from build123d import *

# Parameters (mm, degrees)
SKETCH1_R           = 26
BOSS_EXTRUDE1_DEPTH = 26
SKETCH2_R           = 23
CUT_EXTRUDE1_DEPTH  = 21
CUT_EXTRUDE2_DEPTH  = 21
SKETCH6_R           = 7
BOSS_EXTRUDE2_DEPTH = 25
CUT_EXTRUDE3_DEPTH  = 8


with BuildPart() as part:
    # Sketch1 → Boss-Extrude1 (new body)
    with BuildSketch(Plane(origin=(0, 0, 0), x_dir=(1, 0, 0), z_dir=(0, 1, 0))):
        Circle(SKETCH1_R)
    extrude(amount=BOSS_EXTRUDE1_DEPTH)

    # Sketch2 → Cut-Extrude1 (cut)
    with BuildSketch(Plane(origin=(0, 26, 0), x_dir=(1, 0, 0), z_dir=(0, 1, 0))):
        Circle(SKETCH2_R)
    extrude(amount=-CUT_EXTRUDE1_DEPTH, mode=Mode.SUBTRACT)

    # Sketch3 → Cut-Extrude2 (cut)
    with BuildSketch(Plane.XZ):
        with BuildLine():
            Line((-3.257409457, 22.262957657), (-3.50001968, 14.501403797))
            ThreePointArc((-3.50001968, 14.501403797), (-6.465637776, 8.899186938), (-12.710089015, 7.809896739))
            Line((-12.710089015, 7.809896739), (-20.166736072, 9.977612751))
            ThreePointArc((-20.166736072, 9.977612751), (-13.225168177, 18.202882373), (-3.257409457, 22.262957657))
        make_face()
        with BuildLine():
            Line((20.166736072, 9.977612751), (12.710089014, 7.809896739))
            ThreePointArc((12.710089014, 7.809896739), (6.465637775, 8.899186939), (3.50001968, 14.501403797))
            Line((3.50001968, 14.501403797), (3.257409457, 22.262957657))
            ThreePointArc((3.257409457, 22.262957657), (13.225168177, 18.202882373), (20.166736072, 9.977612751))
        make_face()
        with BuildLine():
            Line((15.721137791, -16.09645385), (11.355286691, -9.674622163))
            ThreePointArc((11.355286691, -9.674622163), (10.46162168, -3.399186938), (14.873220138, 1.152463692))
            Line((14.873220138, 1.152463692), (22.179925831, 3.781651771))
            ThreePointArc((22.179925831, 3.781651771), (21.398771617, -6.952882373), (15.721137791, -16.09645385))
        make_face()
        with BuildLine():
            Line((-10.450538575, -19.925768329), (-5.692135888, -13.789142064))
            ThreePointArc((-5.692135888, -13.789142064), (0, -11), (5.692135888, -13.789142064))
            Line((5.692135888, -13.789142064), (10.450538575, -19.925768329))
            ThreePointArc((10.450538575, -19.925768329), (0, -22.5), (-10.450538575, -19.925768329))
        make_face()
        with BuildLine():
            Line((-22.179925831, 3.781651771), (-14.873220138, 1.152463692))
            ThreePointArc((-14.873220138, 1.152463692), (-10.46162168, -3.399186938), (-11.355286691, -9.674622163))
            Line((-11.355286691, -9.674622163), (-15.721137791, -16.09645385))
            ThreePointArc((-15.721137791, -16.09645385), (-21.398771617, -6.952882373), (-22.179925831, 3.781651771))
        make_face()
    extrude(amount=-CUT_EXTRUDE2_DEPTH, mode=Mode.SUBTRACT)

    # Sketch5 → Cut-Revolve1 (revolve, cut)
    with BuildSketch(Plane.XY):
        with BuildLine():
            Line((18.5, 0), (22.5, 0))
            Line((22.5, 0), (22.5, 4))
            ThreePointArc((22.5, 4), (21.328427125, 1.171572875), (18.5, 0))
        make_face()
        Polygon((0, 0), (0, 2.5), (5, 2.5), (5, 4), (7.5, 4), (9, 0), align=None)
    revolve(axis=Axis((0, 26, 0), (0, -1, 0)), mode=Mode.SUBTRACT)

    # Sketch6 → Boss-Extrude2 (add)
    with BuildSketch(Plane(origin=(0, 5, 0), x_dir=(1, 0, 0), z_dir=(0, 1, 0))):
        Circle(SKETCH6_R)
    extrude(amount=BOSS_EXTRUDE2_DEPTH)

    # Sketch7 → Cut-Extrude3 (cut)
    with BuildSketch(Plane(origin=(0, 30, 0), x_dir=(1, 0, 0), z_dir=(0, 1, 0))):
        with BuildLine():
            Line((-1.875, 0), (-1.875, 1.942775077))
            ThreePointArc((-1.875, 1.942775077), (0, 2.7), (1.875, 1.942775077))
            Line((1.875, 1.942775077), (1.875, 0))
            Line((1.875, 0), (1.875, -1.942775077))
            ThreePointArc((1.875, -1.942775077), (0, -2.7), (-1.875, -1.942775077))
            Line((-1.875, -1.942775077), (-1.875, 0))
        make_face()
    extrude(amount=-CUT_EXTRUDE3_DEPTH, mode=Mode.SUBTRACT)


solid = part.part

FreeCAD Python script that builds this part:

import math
import FreeCAD as App
import Part
import Sketcher

V = App.Vector
Q = App.Units.Quantity

doc = App.newDocument("Part")
body = doc.addObject("PartDesign::Body", "Body")

# Sketch on XZ plane
sketch1 = body.newObject("Sketcher::SketchObject", "Sketch")
sketch1.AttachmentSupport = (doc.getObject("XZ_Plane"), [""])
sketch1.MapMode = "FlatFace"
sketch1.addGeometry(Part.Circle(V(0, 0, 0), V(0, 0, 1), 26), False)
sketch1.addConstraint([
    Sketcher.Constraint("Coincident", 0, 3, -1, 1),
    Sketcher.Constraint("Diameter", 0, Q("52 mm")),
])
pad1 = body.newObject("PartDesign::Pad", "Pad")
pad1.Profile = sketch1
pad1.Length = 26
pad1.Reversed = True

# Sketch on XZ plane
sketch2 = body.newObject("Sketcher::SketchObject", "Sketch001")
sketch2.AttachmentSupport = (doc.getObject("XZ_Plane"), [""])
sketch2.MapMode = "FlatFace"
sketch2.AttachmentOffset = App.Placement(V(0, 0, -26), App.Rotation())
sketch2.addGeometry(Part.Circle(V(0, 0, 0), V(0, 0, 1), 23), False)
sketch2.addConstraint([
    Sketcher.Constraint("Coincident", 0, 3, -1, 1),
    Sketcher.Constraint("Diameter", 0, Q("46 mm")),
])
pocket1 = body.newObject("PartDesign::Pocket", "Pocket")
pocket1.Profile = sketch2
pocket1.Length = 21
pocket1.Reversed = True

# Sketch on XZ plane
sketch3 = body.newObject("Sketcher::SketchObject", "Sketch002")
sketch3.AttachmentSupport = (doc.getObject("XZ_Plane"), [""])
sketch3.MapMode = "FlatFace"
sketch3.addGeometry([
    Part.LineSegment(V(-4, 15, 0), V(-3, 22, 0)),  # 0
    Part.ArcOfCircle(Part.Circle(V(0, 0, 0), V(0, 0, 1), 23), math.radians(98), math.radians(154)),  # 1
    Part.LineSegment(V(-20, 10, 0), V(-13, 8, 0)),  # 2
    Part.ArcOfCircle(Part.Circle(V(-11, 15, 0), V(0, 0, 1), 7), math.radians(-106), math.radians(-2)),  # 3
    Part.LineSegment(V(13, 8, 0), V(20, 10, 0)),  # 4
    Part.ArcOfCircle(Part.Circle(V(0, 0, 0), V(0, 0, 1), 23), math.radians(26), math.radians(82)),  # 5
    Part.LineSegment(V(3, 22, 0), V(4, 15, 0)),  # 6
    Part.ArcOfCircle(Part.Circle(V(11, 15, 0), V(0, 0, 1), 7), math.radians(-178), math.radians(-74)),  # 7
    Part.LineSegment(V(11, -10, 0), V(16, -16, 0)),  # 8
    Part.ArcOfCircle(Part.Circle(V(0, 0, 0), V(0, 0, 1), 22), math.radians(-46), math.radians(10)),  # 9
    Part.LineSegment(V(22, 4, 0), V(15, 1, 0)),  # 10
    Part.ArcOfCircle(Part.Circle(V(17, -6, 0), V(0, 0, 1), 7), math.radians(110), math.radians(214)),  # 11
    Part.LineSegment(V(-6, -14, 0), V(-10, -20, 0)),  # 12
    Part.ArcOfCircle(Part.Circle(V(0, 0, 0), V(0, 0, 1), 23), math.radians(-118), math.radians(-62)),  # 13
    Part.LineSegment(V(10, -20, 0), V(6, -14, 0)),  # 14
    Part.ArcOfCircle(Part.Circle(V(0, -18, 0), V(0, 0, 1), 7), math.radians(38), math.radians(142)),  # 15
    Part.LineSegment(V(-15, 1, 0), V(-22, 4, 0)),  # 16
    Part.ArcOfCircle(Part.Circle(V(0, 0, 0), V(0, 0, 1), 22), math.radians(170), math.radians(226)),  # 17
    Part.LineSegment(V(-16, -16, 0), V(-11, -10, 0)),  # 18
    Part.ArcOfCircle(Part.Circle(V(-17, -6, 0), V(0, 0, 1), 7), math.radians(-34), math.radians(70)),  # 19
], False)
sketch3.addConstraint([
    Sketcher.Constraint("Coincident", 0, 2, 1, 1),
    Sketcher.Constraint("Coincident", 1, 2, 2, 1),
    Sketcher.Constraint("Tangent", 2, 2, 3, 1),
    Sketcher.Constraint("Tangent", 3, 2, 0, 1),
    Sketcher.Constraint("Coincident", 4, 2, 5, 1),
    Sketcher.Constraint("Coincident", 5, 2, 6, 1),
    Sketcher.Constraint("Tangent", 6, 2, 7, 1),
    Sketcher.Constraint("Tangent", 7, 2, 4, 1),
    Sketcher.Constraint("Coincident", 8, 2, 9, 1),
    Sketcher.Constraint("Coincident", 9, 2, 10, 1),
    Sketcher.Constraint("Tangent", 10, 2, 11, 1),
    Sketcher.Constraint("Tangent", 11, 2, 8, 1),
    Sketcher.Constraint("Coincident", 12, 2, 13, 1),
    Sketcher.Constraint("Coincident", 13, 2, 14, 1),
    Sketcher.Constraint("Tangent", 14, 2, 15, 1),
    Sketcher.Constraint("Tangent", 15, 2, 12, 1),
    Sketcher.Constraint("Coincident", 16, 2, 17, 1),
    Sketcher.Constraint("Coincident", 17, 2, 18, 1),
    Sketcher.Constraint("Tangent", 18, 2, 19, 1),
    Sketcher.Constraint("Tangent", 19, 2, 16, 1),
    Sketcher.Constraint("Coincident", 1, 3, -1, 1),
    Sketcher.Constraint("Coincident", 5, 3, -1, 1),
    Sketcher.Constraint("Coincident", 9, 3, -1, 1),
    Sketcher.Constraint("Coincident", 13, 3, -1, 1),
    Sketcher.Constraint("Coincident", 17, 3, -1, 1),
    Sketcher.Constraint("Equal", 1, 5),
    Sketcher.Constraint("Equal", 3, 7),
    Sketcher.Constraint("Equal", 5, 9),
    Sketcher.Constraint("Equal", 7, 11),
    Sketcher.Constraint("Equal", 9, 13),
    Sketcher.Constraint("Equal", 11, 15),
    Sketcher.Constraint("Equal", 13, 17),
    Sketcher.Constraint("Equal", 15, 19),
    Sketcher.Constraint("Symmetric", 3, 3, 7, 3, -2),
    Sketcher.Constraint("Symmetric", 11, 3, 19, 3, -2),
    Sketcher.Constraint("Symmetric", 14, 2, 15, 2, -2),
    Sketcher.Constraint("Horizontal", 1, 2, 4, 2),
    Sketcher.Constraint("Horizontal", 0, 2, 5, 2),
    Sketcher.Constraint("Horizontal", 9, 2, 16, 2),
    Sketcher.Constraint("Horizontal", 8, 2, 17, 2),
    Sketcher.Constraint("Equal", 0, 2),
    Sketcher.Constraint("Equal", 6, 8),
    Sketcher.Constraint("Equal", 8, 10),
    Sketcher.Constraint("Equal", 10, 12),
    Sketcher.Constraint("Radius", 1, Q("22.5 mm")),
    Sketcher.Constraint("DistanceY", 11, 3, -1, 1, Q("5.625 mm")),
    Sketcher.Constraint("Radius", 3, Q("7.202882 mm")),
    Sketcher.Constraint("DistanceX", 14, 2, 8, 2, Q("10.029002 mm")),
    Sketcher.Constraint("DistanceX", 13, 2, 8, 2, Q("5.270599 mm")),
    Sketcher.Constraint("DistanceY", -1, 1, 3, 3, Q("14.726441 mm")),
    Sketcher.Constraint("DistanceX", -1, 1, 11, 3, Q("17.31197 mm")),
    Sketcher.Constraint("DistanceX", 0, 2, -1, 1, Q("3.257409 mm")),
])
pocket2 = body.newObject("PartDesign::Pocket", "Pocket001")
pocket2.Profile = sketch3
pocket2.Length = 21

# Sketch on XY plane
sketch4 = body.newObject("Sketcher::SketchObject", "Sketch003")
sketch4.AttachmentSupport = (doc.getObject("XY_Plane"), [""])
sketch4.MapMode = "FlatFace"
sketch4.addGeometry([
    Part.LineSegment(V(18.5, 0, 0), V(22.5, 0, 0)),  # 0
    Part.LineSegment(V(22.5, 0, 0), V(22.5, 4, 0)),  # 1
    Part.ArcOfCircle(Part.Circle(V(18.5, 4, 0), V(0, 0, 1), 4), math.radians(-90), math.radians(0)),  # 2
    Part.LineSegment(V(0, 2.5, 0), V(0, 0, 0)),  # 3
    Part.LineSegment(V(0, 0, 0), V(9, 0, 0)),  # 4
    Part.LineSegment(V(9, 0, 0), V(7.5, 4, 0)),  # 5
    Part.LineSegment(V(7.5, 4, 0), V(5, 4, 0)),  # 6
    Part.LineSegment(V(5, 4, 0), V(5, 2.5, 0)),  # 7
    Part.LineSegment(V(5, 2.5, 0), V(0, 2.5, 0)),  # 8
], False)
sketch4.addConstraint([
    Sketcher.Constraint("Coincident", 0, 2, 1, 1),
    Sketcher.Constraint("Tangent", 1, 2, 2, 2),
    Sketcher.Constraint("Tangent", 2, 1, 0, 1),
    Sketcher.Constraint("Coincident", 3, 2, 4, 1),
    Sketcher.Constraint("Coincident", 4, 2, 5, 1),
    Sketcher.Constraint("Coincident", 5, 2, 6, 1),
    Sketcher.Constraint("Coincident", 6, 2, 7, 1),
    Sketcher.Constraint("Coincident", 7, 2, 8, 1),
    Sketcher.Constraint("Coincident", 8, 2, 3, 1),
    Sketcher.Constraint("Horizontal", 0),
    Sketcher.Constraint("Vertical", 1),
    Sketcher.Constraint("Vertical", 3),
    Sketcher.Constraint("Horizontal", 4),
    Sketcher.Constraint("Horizontal", 6),
    Sketcher.Constraint("Vertical", 7),
    Sketcher.Constraint("Horizontal", 8),
    Sketcher.Constraint("Coincident", 3, 2, -1, 1),
    Sketcher.Constraint("PointOnObject", 0, 2, -1),
    Sketcher.Constraint("Horizontal", 1, 2, 5, 2),
    Sketcher.Constraint("Equal", 6, 3),
    Sketcher.Constraint("Radius", 2, Q("4 mm")),
    Sketcher.Constraint("DistanceX", 4, 1, 4, 2, Q("9 mm")),
    Sketcher.Constraint("DistanceX", 8, 2, 8, 1, Q("5 mm")),
    Sketcher.Constraint("DistanceX", 6, 2, 6, 1, Q("2.5 mm")),
    Sketcher.Constraint("DistanceX", 5, 2, 2, 3, Q("11 mm")),
])
groove = body.newObject("PartDesign::Groove", "Groove")
groove.Profile = sketch4
groove.ReferenceAxis = (sketch4, ["V_Axis"])
groove.Angle = 360

# Sketch on XZ plane
sketch5 = body.newObject("Sketcher::SketchObject", "Sketch004")
sketch5.AttachmentSupport = (doc.getObject("XZ_Plane"), [""])
sketch5.MapMode = "FlatFace"
sketch5.AttachmentOffset = App.Placement(V(0, 0, -5), App.Rotation())
sketch5.addGeometry(Part.Circle(V(0, 0, 0), V(0, 0, 1), 7), False)
sketch5.addConstraint([
    Sketcher.Constraint("Coincident", 0, 3, -1, 1),
    Sketcher.Constraint("Diameter", 0, Q("14 mm")),
])
pad2 = body.newObject("PartDesign::Pad", "Pad001")
pad2.Profile = sketch5
pad2.Length = 25
pad2.Reversed = True

# Sketch on XZ plane
sketch6 = body.newObject("Sketcher::SketchObject", "Sketch005")
sketch6.AttachmentSupport = (doc.getObject("XZ_Plane"), [""])
sketch6.MapMode = "FlatFace"
sketch6.AttachmentOffset = App.Placement(V(0, 0, -30), App.Rotation())
sketch6.addGeometry([
    Part.ArcOfCircle(Part.Circle(V(0, 0, 0), V(0, 0, 1), 2.7), math.radians(-134), math.radians(-46)),
    Part.LineSegment(V(-1.9, -1.9, 0), V(-1.9, 1.9, 0)),
    Part.ArcOfCircle(Part.Circle(V(0, 0, 0), V(0, 0, 1), 2.7), math.radians(46), math.radians(134)),
    Part.LineSegment(V(1.9, 1.9, 0), V(1.9, -1.9, 0)),
], False)
sketch6.addConstraint([
    Sketcher.Constraint("Coincident", 0, 1, 1, 1),
    Sketcher.Constraint("Coincident", 1, 2, 2, 2),
    Sketcher.Constraint("Coincident", 2, 1, 3, 1),
    Sketcher.Constraint("Coincident", 3, 2, 0, 2),
    Sketcher.Constraint("Vertical", 1),
    Sketcher.Constraint("Vertical", 3),
    Sketcher.Constraint("Coincident", 0, 3, -1, 1),
    Sketcher.Constraint("Coincident", 2, 3, -1, 1),
    Sketcher.Constraint("Equal", 0, 2),
    Sketcher.Constraint("Horizontal", 1, 2, 2, 1),
    Sketcher.Constraint("Radius", 0, Q("2.7 mm")),
    Sketcher.Constraint("DistanceX", 1, 2, 2, 1, Q("3.75 mm")),
])
pocket3 = body.newObject("PartDesign::Pocket", "Pocket002")
pocket3.Profile = sketch6
pocket3.Length = 8
pocket3.Reversed = True

doc.recompute()
